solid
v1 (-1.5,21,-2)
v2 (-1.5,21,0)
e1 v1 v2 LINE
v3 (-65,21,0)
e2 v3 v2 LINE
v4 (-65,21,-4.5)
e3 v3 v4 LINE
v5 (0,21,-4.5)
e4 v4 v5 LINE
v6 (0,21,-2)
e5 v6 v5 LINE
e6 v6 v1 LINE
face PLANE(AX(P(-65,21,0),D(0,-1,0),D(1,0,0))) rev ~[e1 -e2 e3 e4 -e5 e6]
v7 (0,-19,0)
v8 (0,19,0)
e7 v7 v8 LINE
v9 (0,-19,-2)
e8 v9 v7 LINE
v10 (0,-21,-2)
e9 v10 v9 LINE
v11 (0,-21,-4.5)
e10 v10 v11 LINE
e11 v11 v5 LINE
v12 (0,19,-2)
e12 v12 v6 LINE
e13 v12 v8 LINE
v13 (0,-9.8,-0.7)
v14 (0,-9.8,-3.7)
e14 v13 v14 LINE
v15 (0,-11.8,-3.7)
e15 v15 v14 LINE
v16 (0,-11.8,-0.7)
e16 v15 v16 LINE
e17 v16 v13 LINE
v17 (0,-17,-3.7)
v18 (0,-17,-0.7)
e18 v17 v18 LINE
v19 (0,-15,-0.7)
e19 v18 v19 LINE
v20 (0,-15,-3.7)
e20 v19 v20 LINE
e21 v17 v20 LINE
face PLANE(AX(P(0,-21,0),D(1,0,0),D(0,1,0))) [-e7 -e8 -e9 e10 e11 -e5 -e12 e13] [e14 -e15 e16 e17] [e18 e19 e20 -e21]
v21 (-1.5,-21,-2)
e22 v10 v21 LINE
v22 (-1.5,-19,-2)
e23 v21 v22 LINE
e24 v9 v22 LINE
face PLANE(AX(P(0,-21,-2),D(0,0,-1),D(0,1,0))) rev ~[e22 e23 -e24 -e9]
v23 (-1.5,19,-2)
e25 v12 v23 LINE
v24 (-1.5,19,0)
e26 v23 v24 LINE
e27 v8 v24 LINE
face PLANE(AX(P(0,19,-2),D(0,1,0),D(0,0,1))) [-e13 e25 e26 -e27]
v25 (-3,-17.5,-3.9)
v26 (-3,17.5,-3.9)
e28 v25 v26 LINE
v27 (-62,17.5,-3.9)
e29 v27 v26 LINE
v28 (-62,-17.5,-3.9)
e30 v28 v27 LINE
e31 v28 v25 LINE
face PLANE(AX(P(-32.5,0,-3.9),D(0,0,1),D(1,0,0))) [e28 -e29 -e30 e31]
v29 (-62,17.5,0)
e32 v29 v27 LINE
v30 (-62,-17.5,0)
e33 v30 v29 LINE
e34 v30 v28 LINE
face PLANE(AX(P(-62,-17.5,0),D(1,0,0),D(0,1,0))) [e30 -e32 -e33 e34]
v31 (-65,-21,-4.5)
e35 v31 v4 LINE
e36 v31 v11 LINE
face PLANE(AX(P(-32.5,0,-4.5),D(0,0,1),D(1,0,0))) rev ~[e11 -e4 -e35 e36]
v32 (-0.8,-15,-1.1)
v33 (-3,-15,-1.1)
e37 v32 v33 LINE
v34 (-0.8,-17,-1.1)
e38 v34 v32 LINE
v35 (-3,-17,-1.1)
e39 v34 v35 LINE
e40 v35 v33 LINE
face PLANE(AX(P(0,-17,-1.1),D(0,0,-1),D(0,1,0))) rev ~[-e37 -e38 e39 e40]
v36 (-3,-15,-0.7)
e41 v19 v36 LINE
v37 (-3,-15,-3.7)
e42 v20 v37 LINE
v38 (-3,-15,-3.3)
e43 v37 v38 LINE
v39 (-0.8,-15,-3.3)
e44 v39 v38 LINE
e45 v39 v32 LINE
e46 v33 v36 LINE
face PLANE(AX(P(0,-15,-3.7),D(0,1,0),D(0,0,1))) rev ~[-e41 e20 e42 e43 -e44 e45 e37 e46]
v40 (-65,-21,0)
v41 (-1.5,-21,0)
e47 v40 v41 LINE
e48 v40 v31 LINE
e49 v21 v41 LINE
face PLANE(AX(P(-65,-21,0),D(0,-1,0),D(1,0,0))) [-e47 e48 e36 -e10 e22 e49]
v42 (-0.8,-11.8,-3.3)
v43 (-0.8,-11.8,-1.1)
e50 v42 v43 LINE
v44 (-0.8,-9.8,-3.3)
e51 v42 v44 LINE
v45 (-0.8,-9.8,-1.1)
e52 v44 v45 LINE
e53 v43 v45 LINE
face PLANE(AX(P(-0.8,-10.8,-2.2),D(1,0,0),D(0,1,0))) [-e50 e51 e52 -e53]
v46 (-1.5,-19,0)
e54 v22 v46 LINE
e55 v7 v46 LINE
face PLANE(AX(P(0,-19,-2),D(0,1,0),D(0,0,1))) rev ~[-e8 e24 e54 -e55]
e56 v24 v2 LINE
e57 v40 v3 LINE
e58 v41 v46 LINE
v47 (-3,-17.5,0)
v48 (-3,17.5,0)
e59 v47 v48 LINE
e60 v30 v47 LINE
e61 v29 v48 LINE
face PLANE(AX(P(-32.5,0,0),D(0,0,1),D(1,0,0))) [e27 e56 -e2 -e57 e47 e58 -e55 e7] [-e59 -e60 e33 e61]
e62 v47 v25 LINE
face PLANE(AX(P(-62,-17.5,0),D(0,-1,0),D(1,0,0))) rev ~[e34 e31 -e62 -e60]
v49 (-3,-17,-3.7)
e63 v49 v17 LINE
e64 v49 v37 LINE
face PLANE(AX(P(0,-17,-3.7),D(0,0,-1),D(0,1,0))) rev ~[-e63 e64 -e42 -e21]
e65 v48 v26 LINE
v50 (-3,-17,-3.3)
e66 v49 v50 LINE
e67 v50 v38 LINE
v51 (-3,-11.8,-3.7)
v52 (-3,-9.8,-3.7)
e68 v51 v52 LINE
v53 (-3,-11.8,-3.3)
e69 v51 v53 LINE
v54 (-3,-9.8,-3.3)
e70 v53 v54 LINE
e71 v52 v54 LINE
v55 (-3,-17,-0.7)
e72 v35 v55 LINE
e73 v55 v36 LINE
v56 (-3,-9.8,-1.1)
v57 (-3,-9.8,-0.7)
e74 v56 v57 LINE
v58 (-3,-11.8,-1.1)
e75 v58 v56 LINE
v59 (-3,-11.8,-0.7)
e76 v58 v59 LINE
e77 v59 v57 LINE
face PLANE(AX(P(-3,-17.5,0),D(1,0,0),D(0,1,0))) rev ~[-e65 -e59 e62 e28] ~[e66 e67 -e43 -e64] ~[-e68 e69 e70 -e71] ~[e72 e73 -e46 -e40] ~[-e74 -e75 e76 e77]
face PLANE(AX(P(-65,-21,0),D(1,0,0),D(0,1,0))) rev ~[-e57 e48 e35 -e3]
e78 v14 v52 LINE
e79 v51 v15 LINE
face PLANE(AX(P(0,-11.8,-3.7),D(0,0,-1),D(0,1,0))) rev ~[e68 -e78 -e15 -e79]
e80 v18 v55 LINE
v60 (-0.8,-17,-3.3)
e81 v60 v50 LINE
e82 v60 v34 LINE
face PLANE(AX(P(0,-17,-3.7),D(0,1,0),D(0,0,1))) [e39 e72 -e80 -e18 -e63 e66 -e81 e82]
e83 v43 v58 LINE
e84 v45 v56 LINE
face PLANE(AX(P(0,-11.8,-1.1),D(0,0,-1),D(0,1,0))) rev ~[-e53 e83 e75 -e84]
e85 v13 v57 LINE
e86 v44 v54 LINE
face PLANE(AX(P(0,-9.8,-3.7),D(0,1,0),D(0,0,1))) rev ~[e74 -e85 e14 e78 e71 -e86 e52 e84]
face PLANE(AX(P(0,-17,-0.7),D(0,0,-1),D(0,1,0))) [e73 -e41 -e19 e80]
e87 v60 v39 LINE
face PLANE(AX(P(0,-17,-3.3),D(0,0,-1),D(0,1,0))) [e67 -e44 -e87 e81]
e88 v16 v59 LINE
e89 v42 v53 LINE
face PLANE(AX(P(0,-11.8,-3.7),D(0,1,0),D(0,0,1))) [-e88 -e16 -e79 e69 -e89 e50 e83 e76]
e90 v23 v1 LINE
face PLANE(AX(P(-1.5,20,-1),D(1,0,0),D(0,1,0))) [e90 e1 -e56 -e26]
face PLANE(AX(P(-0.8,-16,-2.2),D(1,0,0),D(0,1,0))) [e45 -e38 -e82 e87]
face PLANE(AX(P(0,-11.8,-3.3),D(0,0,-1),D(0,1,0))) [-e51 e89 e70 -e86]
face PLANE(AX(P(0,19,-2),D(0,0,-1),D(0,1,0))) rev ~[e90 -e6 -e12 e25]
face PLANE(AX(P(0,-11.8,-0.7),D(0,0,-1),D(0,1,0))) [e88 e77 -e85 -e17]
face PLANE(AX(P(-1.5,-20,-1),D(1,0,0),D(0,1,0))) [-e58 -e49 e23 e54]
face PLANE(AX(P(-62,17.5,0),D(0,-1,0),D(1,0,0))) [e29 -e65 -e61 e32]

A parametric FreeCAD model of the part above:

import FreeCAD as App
import Part
import Sketcher
from FreeCAD import Vector

doc = App.newDocument("Part")
params = doc.addObject("Spreadsheet::Sheet", "Params")
for row, (alias, value) in enumerate([
    ("sketch1_width", "65 mm"),
    ("sketch1_height", "42 mm"),
    ("pad1_length", "4.5 mm"),
    ("sketch2_width", "2 mm"),
    ("pocket1_length", "1.5 mm"),
    ("sketch3_width", "2 mm"),
    ("sketch3_height", "3 mm"),
    ("pocket2_length", "0.8 mm"),
    ("sketch4_width", "59 mm"),
    ("sketch4_height", "35 mm"),
    ("pocket3_length", "3.9 mm"),
    ("sketch5_width", "2 mm"),
    ("sketch5_height", "0.4 mm"),
    ("pocket4_length", "5 mm"),
], start=1):
    params.set(f"A{row}", alias)
    params.set(f"B{row}", "=" + value)
    params.setAlias(f"B{row}", alias)

body = doc.addObject("PartDesign::Body", "Body")

sketch1 = body.newObject("Sketcher::SketchObject", "Sketch")
sketch1.AttachmentSupport = (doc.getObject("XY_Plane"), [""])
sketch1.MapMode = "FlatFace"
sketch1.addGeometry(Part.LineSegment(Vector(-65, 21, 0), Vector(-65, -21, 0)), False)
sketch1.addGeometry(Part.LineSegment(Vector(-65, -21, 0), Vector(0, -21, 0)), False)
sketch1.addGeometry(Part.LineSegment(Vector(0, -21, 0), Vector(0, 21, 0)), False)
sketch1.addGeometry(Part.LineSegment(Vector(0, 21, 0), Vector(-65, 21, 0)), False)
sketch1.addConstraint(Sketcher.Constraint("Coincident", 0, 2, 1, 1))
sketch1.addConstraint(Sketcher.Constraint("Coincident", 1, 2, 2, 1))
sketch1.addConstraint(Sketcher.Constraint("Coincident", 2, 2, 3, 1))
sketch1.addConstraint(Sketcher.Constraint("Coincident", 3, 2, 0, 1))
sketch1.addConstraint(Sketcher.Constraint("Vertical", 0))
sketch1.addConstraint(Sketcher.Constraint("Horizontal", 1))
sketch1.addConstraint(Sketcher.Constraint("Vertical", 2))
sketch1.addConstraint(Sketcher.Constraint("Horizontal", 3))
sketch1.addConstraint(Sketcher.Constraint("Symmetric", 1, 2, 2, 2, -1, 1))
sketch1.addConstraint(Sketcher.Constraint("DistanceX", 1, 1, 1, 2, 65.0))
sketch1.addConstraint(Sketcher.Constraint("DistanceY", 0, 2, 0, 1, 42.0))
sketch1.setExpression("Constraints[9]", "Params.sketch1_width")
sketch1.setExpression("Constraints[10]", "Params.sketch1_height")
pad1 = body.newObject("PartDesign::Pad", "Pad")
pad1.Profile = sketch1
pad1.setExpression("Length", "Params.pad1_length")
pad1.Reversed = True

sketch2 = body.newObject("Sketcher::SketchObject", "Sketch001")
sketch2.AttachmentSupport = (doc.getObject("YZ_Plane"), [""])
sketch2.MapMode = "FlatFace"
sketch2.addGeometry(Part.LineSegment(Vector(-21, 0, 0), Vector(-21, -2, 0)), False)
sketch2.addGeometry(Part.LineSegment(Vector(-21, -2, 0), Vector(-19, -2, 0)), False)
sketch2.addGeometry(Part.LineSegment(Vector(-19, -2, 0), Vector(-19, 0, 0)), False)
sketch2.addGeometry(Part.LineSegment(Vector(-19, 0, 0), Vector(-21, 0, 0)), False)
sketch2.addGeometry(Part.LineSegment(Vector(19, 0, 0), Vector(19, -2, 0)), False)
sketch2.addGeometry(Part.LineSegment(Vector(19, -2, 0), Vector(21, -2, 0)), False)
sketch2.addGeometry(Part.LineSegment(Vector(21, -2, 0), Vector(21, 0, 0)), False)
sketch2.addGeometry(Part.LineSegment(Vector(21, 0, 0), Vector(19, 0, 0)), False)
sketch2.addConstraint(Sketcher.Constraint("Coincident", 0, 2, 1, 1))
sketch2.addConstraint(Sketcher.Constraint("Coincident", 1, 2, 2, 1))
sketch2.addConstraint(Sketcher.Constraint("Coincident", 2, 2, 3, 1))
sketch2.addConstraint(Sketcher.Constraint("Coincident", 3, 2, 0, 1))
sketch2.addConstraint(Sketcher.Constraint("Coincident", 4, 2, 5, 1))
sketch2.addConstraint(Sketcher.Constraint("Coincident", 5, 2, 6, 1))
sketch2.addConstraint(Sketcher.Constraint("Coincident", 6, 2, 7, 1))
sketch2.addConstraint(Sketcher.Constraint("Coincident", 7, 2, 4, 1))
sketch2.addConstraint(Sketcher.Constraint("Vertical", 0))
sketch2.addConstraint(Sketcher.Constraint("Horizontal", 1))
sketch2.addConstraint(Sketcher.Constraint("Vertical", 2))
sketch2.addConstraint(Sketcher.Constraint("Horizontal", 3))
sketch2.addConstraint(Sketcher.Constraint("Vertical", 4))
sketch2.addConstraint(Sketcher.Constraint("Horizontal", 5))
sketch2.addConstraint(Sketcher.Constraint("Vertical", 6))
sketch2.addConstraint(Sketcher.Constraint("Horizontal", 7))
sketch2.addConstraint(Sketcher.Constraint("Symmetric", 3, 2, 6, 2, -1, 1))
sketch2.addConstraint(Sketcher.Constraint("Symmetric", 1, 2, 4, 2, -2))
sketch2.addConstraint(Sketcher.Constraint("PointOnObject", 2, 2, -1))
sketch2.addConstraint(Sketcher.Constraint("Equal", 7, 0))
sketch2.addConstraint(Sketcher.Constraint("DistanceX", 1, 1, 1, 2, 2.0))
sketch2.addConstraint(Sketcher.Constraint("DistanceX", 0, 2, -1, 1, 21.0))
sketch2.setExpression("Constraints[20]", "Params.sketch2_width")
pocket1 = body.newObject("PartDesign::Pocket", "Pocket")
pocket1.Profile = sketch2
pocket1.setExpression("Length", "Params.pocket1_length")

sketch3 = body.newObject("Sketcher::SketchObject", "Sketch002")
sketch3.AttachmentSupport = (doc.getObject("YZ_Plane"), [""])
sketch3.MapMode = "FlatFace"
sketch3.addGeometry(Part.LineSegment(Vector(-17, -0.7, 0), Vector(-17, -3.7, 0)), False)
sketch3.addGeometry(Part.LineSegment(Vector(-17, -3.7, 0), Vector(-15, -3.7, 0)), False)
sketch3.addGeometry(Part.LineSegment(Vector(-15, -3.7, 0), Vector(-15, -0.7, 0)), False)
sketch3.addGeometry(Part.LineSegment(Vector(-15, -0.7, 0), Vector(-17, -0.7, 0)), False)
sketch3.addGeometry(Part.LineSegment(Vector(-11.8, -0.7, 0), Vector(-11.8, -3.7, 0)), False)
sketch3.addGeometry(Part.LineSegment(Vector(-11.8, -3.7, 0), Vector(-9.8, -3.7, 0)), False)
sketch3.addGeometry(Part.LineSegment(Vector(-9.8, -3.7, 0), Vector(-9.8, -0.7, 0)), False)
sketch3.addGeometry(Part.LineSegment(Vector(-9.8, -0.7, 0), Vector(-11.8, -0.7, 0)), False)
sketch3.addConstraint(Sketcher.Constraint("Coincident", 0, 2, 1, 1))
sketch3.addConstraint(Sketcher.Constraint("Coincident", 1, 2, 2, 1))
sketch3.addConstraint(Sketcher.Constraint("Coincident", 2, 2, 3, 1))
sketch3.addConstraint(Sketcher.Constraint("Coincident", 3, 2, 0, 1))
sketch3.addConstraint(Sketcher.Constraint("Coincident", 4, 2, 5, 1))
sketch3.addConstraint(Sketcher.Constraint("Coincident", 5, 2, 6, 1))
sketch3.addConstraint(Sketcher.Constraint("Coincident", 6, 2, 7, 1))
sketch3.addConstraint(Sketcher.Constraint("Coincident", 7, 2, 4, 1))
sketch3.addConstraint(Sketcher.Constraint("Vertical", 0))
sketch3.addConstraint(Sketcher.Constraint("Horizontal", 1))
sketch3.addConstraint(Sketcher.Constraint("Vertical", 2))
sketch3.addConstraint(Sketcher.Constraint("Horizontal", 3))
sketch3.addConstraint(Sketcher.Constraint("Vertical", 4))
sketch3.addConstraint(Sketcher.Constraint("Horizontal", 5))
sketch3.addConstraint(Sketcher.Constraint("Vertical", 6))
sketch3.addConstraint(Sketcher.Constraint("Horizontal", 7))
sketch3.addConstraint(Sketcher.Constraint("Horizontal", 1, 2, 4, 2))
sketch3.addConstraint(Sketcher.Constraint("Horizontal", 3, 2, 6, 2))
sketch3.addConstraint(Sketcher.Constraint("Equal", 3, 5))
sketch3.addConstraint(Sketcher.Constraint("DistanceX", 1, 1, 1, 2, 2.0))
sketch3.addConstraint(Sketcher.Constraint("DistanceY", 0, 2, 0, 1, 3.0))
sketch3.addConstraint(Sketcher.Constraint("DistanceX", 0, 2, -1, 1, 17.0))
sketch3.addConstraint(Sketcher.Constraint("DistanceY", 0, 2, -1, 1, 3.7))
sketch3.addConstraint(Sketcher.Constraint("DistanceX", 4, 2, -1, 1, 11.8))
sketch3.setExpression("Constraints[19]", "Params.sketch3_width")
sketch3.setExpression("Constraints[20]", "Params.sketch3_height")
pocket2 = body.newObject("PartDesign::Pocket", "Pocket001")
pocket2.Profile = sketch3
pocket2.setExpression("Length", "Params.pocket2_length")

sketch4 = body.newObject("Sketcher::SketchObject", "Sketch003")
sketch4.AttachmentSupport = (doc.getObject("XY_Plane"), [""])
sketch4.MapMode = "FlatFace"
sketch4.addGeometry(Part.LineSegment(Vector(-62, 18, 0), Vector(-62, -18, 0)), False)
sketch4.addGeometry(Part.LineSegment(Vector(-62, -18, 0), Vector(-3, -18, 0)), False)
sketch4.addGeometry(Part.LineSegment(Vector(-3, -18, 0), Vector(-3, 18, 0)), False)
sketch4.addGeometry(Part.LineSegment(Vector(-3, 18, 0), Vector(-62, 18, 0)), False)
sketch4.addConstraint(Sketcher.Constraint("Coincident", 0, 2, 1, 1))
sketch4.addConstraint(Sketcher.Constraint("Coincident", 1, 2, 2, 1))
sketch4.addConstraint(Sketcher.Constraint("Coincident", 2, 2, 3, 1))
sketch4.addConstraint(Sketcher.Constraint("Coincident", 3, 2, 0, 1))
sketch4.addConstraint(Sketcher.Constraint("Vertical", 0))
sketch4.addConstraint(Sketcher.Constraint("Horizontal", 1))
sketch4.addConstraint(Sketcher.Constraint("Vertical", 2))
sketch4.addConstraint(Sketcher.Constraint("Horizontal", 3))
sketch4.addConstraint(Sketcher.Constraint("DistanceX", 1, 1, 1, 2, 59.0))
sketch4.addConstraint(Sketcher.Constraint("DistanceY", 0, 2, 0, 1, 35.0))
sketch4.addConstraint(Sketcher.Constraint("DistanceX", 0, 2, -1, 1, 62.0))
sketch4.addConstraint(Sketcher.Constraint("DistanceY", 0, 2, -1, 1, 17.5))
sketch4.setExpression("Constraints[8]", "Params.sketch4_width")
sketch4.setExpression("Constraints[9]", "Params.sketch4_height")
pocket3 = body.newObject("PartDesign::Pocket", "Pocket002")
pocket3.Profile = sketch4
pocket3.setExpression("Length", "Params.pocket3_length")

sketch5 = body.newObject("Sketcher::SketchObject", "Sketch004")
sketch5.AttachmentSupport = (doc.getObject("YZ_Plane"), [""])
sketch5.MapMode = "FlatFace"
sketch5.addGeometry(Part.LineSegment(Vector(-17, -0.7, 0), Vector(-17, -1.1, 0)), False)
sketch5.addGeometry(Part.LineSegment(Vector(-17, -1.1, 0), Vector(-15, -1.1, 0)), False)
sketch5.addGeometry(Part.LineSegment(Vector(-15, -1.1, 0), Vector(-15, -0.7, 0)), False)
sketch5.addGeometry(Part.LineSegment(Vector(-15, -0.7, 0), Vector(-17, -0.7, 0)), False)
sketch5.addGeometry(Part.LineSegment(Vector(-17, -3.3, 0), Vector(-17, -3.7, 0)), False)
sketch5.addGeometry(Part.LineSegment(Vector(-17, -3.7, 0), Vector(-15, -3.7, 0)), False)
sketch5.addGeometry(Part.LineSegment(Vector(-15, -3.7, 0), Vector(-15, -3.3, 0)), False)
sketch5.addGeometry(Part.LineSegment(Vector(-15, -3.3, 0), Vector(-17, -3.3, 0)), False)
sketch5.addGeometry(Part.LineSegment(Vector(-11.8, -0.7, 0), Vector(-11.8, -1.1, 0)), False)
sketch5.addGeometry(Part.LineSegment(Vector(-11.8, -1.1, 0), Vector(-9.8, -1.1, 0)), False)
sketch5.addGeometry(Part.LineSegment(Vector(-9.8, -1.1, 0), Vector(-9.8, -0.7, 0)), False)
sketch5.addGeometry(Part.LineSegment(Vector(-9.8, -0.7, 0), Vector(-11.8, -0.7, 0)), False)
sketch5.addGeometry(Part.LineSegment(Vector(-11.8, -3.3, 0), Vector(-11.8, -3.7, 0)), False)
sketch5.addGeometry(Part.LineSegment(Vector(-11.8, -3.7, 0), Vector(-9.8, -3.7, 0)), False)
sketch5.addGeometry(Part.LineSegment(Vector(-9.8, -3.7, 0), Vector(-9.8, -3.3, 0)), False)
sketch5.addGeometry(Part.LineSegment(Vector(-9.8, -3.3, 0), Vector(-11.8, -3.3, 0)), False)
sketch5.addConstraint(Sketcher.Constraint("Coincident", 0, 2, 1, 1))
sketch5.addConstraint(Sketcher.Constraint("Coincident", 1, 2, 2, 1))
sketch5.addConstraint(Sketcher.Constraint("Coincident", 2, 2, 3, 1))
sketch5.addConstraint(Sketcher.Constraint("Coincident", 3, 2, 0, 1))
sketch5.addConstraint(Sketcher.Constraint("Coincident", 4, 2, 5, 1))
sketch5.addConstraint(Sketcher.Constraint("Coincident", 5, 2, 6, 1))
sketch5.addConstraint(Sketcher.Constraint("Coincident", 6, 2, 7, 1))
sketch5.addConstraint(Sketcher.Constraint("Coincident", 7, 2, 4, 1))
sketch5.addConstraint(Sketcher.Constraint("Coincident", 8, 2, 9, 1))
sketch5.addConstraint(Sketcher.Constraint("Coincident", 9, 2, 10, 1))
sketch5.addConstraint(Sketcher.Constraint("Coincident", 10, 2, 11, 1))
sketch5.addConstraint(Sketcher.Constraint("Coincident", 11, 2, 8, 1))
sketch5.addConstraint(Sketcher.Constraint("Coincident", 12, 2, 13, 1))
sketch5.addConstraint(Sketcher.Constraint("Coincident", 13, 2, 14, 1))
sketch5.addConstraint(Sketcher.Constraint("Coincident", 14, 2, 15, 1))
sketch5.addConstraint(Sketcher.Constraint("Coincident", 15, 2, 12, 1))
sketch5.addConstraint(Sketcher.Constraint("Vertical", 0))
sketch5.addConstraint(Sketcher.Constraint("Horizontal", 1))
sketch5.addConstraint(Sketcher.Constraint("Vertical", 2))
sketch5.addConstraint(Sketcher.Constraint("Horizontal", 3))
sketch5.addConstraint(Sketcher.Constraint("Vertical", 4))
sketch5.addConstraint(Sketcher.Constraint("Horizontal", 5))
sketch5.addConstraint(Sketcher.Constraint("Vertical", 6))
sketch5.addConstraint(Sketcher.Constraint("Horizontal", 7))
sketch5.addConstraint(Sketcher.Constraint("Vertical", 8))
sketch5.addConstraint(Sketcher.Constraint("Horizontal", 9))
sketch5.addConstraint(Sketcher.Constraint("Vertical", 10))
sketch5.addConstraint(Sketcher.Constraint("Horizontal", 11))
sketch5.addConstraint(Sketcher.Constraint("Vertical", 12))
sketch5.addConstraint(Sketcher.Constraint("Horizontal", 13))
sketch5.addConstraint(Sketcher.Constraint("Vertical", 14))
sketch5.addConstraint(Sketcher.Constraint("Horizontal", 15))
sketch5.addConstraint(Sketcher.Constraint("Horizontal", 1, 2, 8, 2))
sketch5.addConstraint(Sketcher.Constraint("Horizontal", 3, 2, 10, 2))
sketch5.addConstraint(Sketcher.Constraint("Horizontal", 5, 2, 12, 2))
sketch5.addConstraint(Sketcher.Constraint("Horizontal", 7, 2, 14, 2))
sketch5.addConstraint(Sketcher.Constraint("Vertical", 3, 2, 4, 2))
sketch5.addConstraint(Sketcher.Constraint("Vertical", 2, 2, 5, 2))
sketch5.addConstraint(Sketcher.Constraint("Vertical", 11, 2, 12, 2))
sketch5.addConstraint(Sketcher.Constraint("Vertical", 10, 2, 13, 2))
sketch5.addConstraint(Sketcher.Constraint("Equal", 7, 9))
sketch5.addConstraint(Sketcher.Constraint("Equal", 2, 4))
sketch5.addConstraint(Sketcher.Constraint("DistanceX", 1, 1, 1, 2, 2.0))
sketch5.addConstraint(Sketcher.Constraint("DistanceY", 0, 2, 0, 1, 0.4))
sketch5.addConstraint(Sketcher.Constraint("DistanceX", 0, 2, -1, 1, 17.0))
sketch5.addConstraint(Sketcher.Constraint("DistanceY", 4, 2, 3, 2, 3.0))
sketch5.addConstraint(Sketcher.Constraint("DistanceY", 0, 2, -1, 1, 1.1))
sketch5.addConstraint(Sketcher.Constraint("DistanceX", 8, 2, -1, 1, 11.8))
sketch5.setExpression("Constraints[42]", "Params.sketch5_width")
sketch5.setExpression("Constraints[43]", "Params.sketch5_height")
pocket4 = body.newObject("PartDesign::Pocket", "Pocket003")
pocket4.Profile = sketch5
pocket4.setExpression("Length", "Params.pocket4_length")

doc.recompute()
